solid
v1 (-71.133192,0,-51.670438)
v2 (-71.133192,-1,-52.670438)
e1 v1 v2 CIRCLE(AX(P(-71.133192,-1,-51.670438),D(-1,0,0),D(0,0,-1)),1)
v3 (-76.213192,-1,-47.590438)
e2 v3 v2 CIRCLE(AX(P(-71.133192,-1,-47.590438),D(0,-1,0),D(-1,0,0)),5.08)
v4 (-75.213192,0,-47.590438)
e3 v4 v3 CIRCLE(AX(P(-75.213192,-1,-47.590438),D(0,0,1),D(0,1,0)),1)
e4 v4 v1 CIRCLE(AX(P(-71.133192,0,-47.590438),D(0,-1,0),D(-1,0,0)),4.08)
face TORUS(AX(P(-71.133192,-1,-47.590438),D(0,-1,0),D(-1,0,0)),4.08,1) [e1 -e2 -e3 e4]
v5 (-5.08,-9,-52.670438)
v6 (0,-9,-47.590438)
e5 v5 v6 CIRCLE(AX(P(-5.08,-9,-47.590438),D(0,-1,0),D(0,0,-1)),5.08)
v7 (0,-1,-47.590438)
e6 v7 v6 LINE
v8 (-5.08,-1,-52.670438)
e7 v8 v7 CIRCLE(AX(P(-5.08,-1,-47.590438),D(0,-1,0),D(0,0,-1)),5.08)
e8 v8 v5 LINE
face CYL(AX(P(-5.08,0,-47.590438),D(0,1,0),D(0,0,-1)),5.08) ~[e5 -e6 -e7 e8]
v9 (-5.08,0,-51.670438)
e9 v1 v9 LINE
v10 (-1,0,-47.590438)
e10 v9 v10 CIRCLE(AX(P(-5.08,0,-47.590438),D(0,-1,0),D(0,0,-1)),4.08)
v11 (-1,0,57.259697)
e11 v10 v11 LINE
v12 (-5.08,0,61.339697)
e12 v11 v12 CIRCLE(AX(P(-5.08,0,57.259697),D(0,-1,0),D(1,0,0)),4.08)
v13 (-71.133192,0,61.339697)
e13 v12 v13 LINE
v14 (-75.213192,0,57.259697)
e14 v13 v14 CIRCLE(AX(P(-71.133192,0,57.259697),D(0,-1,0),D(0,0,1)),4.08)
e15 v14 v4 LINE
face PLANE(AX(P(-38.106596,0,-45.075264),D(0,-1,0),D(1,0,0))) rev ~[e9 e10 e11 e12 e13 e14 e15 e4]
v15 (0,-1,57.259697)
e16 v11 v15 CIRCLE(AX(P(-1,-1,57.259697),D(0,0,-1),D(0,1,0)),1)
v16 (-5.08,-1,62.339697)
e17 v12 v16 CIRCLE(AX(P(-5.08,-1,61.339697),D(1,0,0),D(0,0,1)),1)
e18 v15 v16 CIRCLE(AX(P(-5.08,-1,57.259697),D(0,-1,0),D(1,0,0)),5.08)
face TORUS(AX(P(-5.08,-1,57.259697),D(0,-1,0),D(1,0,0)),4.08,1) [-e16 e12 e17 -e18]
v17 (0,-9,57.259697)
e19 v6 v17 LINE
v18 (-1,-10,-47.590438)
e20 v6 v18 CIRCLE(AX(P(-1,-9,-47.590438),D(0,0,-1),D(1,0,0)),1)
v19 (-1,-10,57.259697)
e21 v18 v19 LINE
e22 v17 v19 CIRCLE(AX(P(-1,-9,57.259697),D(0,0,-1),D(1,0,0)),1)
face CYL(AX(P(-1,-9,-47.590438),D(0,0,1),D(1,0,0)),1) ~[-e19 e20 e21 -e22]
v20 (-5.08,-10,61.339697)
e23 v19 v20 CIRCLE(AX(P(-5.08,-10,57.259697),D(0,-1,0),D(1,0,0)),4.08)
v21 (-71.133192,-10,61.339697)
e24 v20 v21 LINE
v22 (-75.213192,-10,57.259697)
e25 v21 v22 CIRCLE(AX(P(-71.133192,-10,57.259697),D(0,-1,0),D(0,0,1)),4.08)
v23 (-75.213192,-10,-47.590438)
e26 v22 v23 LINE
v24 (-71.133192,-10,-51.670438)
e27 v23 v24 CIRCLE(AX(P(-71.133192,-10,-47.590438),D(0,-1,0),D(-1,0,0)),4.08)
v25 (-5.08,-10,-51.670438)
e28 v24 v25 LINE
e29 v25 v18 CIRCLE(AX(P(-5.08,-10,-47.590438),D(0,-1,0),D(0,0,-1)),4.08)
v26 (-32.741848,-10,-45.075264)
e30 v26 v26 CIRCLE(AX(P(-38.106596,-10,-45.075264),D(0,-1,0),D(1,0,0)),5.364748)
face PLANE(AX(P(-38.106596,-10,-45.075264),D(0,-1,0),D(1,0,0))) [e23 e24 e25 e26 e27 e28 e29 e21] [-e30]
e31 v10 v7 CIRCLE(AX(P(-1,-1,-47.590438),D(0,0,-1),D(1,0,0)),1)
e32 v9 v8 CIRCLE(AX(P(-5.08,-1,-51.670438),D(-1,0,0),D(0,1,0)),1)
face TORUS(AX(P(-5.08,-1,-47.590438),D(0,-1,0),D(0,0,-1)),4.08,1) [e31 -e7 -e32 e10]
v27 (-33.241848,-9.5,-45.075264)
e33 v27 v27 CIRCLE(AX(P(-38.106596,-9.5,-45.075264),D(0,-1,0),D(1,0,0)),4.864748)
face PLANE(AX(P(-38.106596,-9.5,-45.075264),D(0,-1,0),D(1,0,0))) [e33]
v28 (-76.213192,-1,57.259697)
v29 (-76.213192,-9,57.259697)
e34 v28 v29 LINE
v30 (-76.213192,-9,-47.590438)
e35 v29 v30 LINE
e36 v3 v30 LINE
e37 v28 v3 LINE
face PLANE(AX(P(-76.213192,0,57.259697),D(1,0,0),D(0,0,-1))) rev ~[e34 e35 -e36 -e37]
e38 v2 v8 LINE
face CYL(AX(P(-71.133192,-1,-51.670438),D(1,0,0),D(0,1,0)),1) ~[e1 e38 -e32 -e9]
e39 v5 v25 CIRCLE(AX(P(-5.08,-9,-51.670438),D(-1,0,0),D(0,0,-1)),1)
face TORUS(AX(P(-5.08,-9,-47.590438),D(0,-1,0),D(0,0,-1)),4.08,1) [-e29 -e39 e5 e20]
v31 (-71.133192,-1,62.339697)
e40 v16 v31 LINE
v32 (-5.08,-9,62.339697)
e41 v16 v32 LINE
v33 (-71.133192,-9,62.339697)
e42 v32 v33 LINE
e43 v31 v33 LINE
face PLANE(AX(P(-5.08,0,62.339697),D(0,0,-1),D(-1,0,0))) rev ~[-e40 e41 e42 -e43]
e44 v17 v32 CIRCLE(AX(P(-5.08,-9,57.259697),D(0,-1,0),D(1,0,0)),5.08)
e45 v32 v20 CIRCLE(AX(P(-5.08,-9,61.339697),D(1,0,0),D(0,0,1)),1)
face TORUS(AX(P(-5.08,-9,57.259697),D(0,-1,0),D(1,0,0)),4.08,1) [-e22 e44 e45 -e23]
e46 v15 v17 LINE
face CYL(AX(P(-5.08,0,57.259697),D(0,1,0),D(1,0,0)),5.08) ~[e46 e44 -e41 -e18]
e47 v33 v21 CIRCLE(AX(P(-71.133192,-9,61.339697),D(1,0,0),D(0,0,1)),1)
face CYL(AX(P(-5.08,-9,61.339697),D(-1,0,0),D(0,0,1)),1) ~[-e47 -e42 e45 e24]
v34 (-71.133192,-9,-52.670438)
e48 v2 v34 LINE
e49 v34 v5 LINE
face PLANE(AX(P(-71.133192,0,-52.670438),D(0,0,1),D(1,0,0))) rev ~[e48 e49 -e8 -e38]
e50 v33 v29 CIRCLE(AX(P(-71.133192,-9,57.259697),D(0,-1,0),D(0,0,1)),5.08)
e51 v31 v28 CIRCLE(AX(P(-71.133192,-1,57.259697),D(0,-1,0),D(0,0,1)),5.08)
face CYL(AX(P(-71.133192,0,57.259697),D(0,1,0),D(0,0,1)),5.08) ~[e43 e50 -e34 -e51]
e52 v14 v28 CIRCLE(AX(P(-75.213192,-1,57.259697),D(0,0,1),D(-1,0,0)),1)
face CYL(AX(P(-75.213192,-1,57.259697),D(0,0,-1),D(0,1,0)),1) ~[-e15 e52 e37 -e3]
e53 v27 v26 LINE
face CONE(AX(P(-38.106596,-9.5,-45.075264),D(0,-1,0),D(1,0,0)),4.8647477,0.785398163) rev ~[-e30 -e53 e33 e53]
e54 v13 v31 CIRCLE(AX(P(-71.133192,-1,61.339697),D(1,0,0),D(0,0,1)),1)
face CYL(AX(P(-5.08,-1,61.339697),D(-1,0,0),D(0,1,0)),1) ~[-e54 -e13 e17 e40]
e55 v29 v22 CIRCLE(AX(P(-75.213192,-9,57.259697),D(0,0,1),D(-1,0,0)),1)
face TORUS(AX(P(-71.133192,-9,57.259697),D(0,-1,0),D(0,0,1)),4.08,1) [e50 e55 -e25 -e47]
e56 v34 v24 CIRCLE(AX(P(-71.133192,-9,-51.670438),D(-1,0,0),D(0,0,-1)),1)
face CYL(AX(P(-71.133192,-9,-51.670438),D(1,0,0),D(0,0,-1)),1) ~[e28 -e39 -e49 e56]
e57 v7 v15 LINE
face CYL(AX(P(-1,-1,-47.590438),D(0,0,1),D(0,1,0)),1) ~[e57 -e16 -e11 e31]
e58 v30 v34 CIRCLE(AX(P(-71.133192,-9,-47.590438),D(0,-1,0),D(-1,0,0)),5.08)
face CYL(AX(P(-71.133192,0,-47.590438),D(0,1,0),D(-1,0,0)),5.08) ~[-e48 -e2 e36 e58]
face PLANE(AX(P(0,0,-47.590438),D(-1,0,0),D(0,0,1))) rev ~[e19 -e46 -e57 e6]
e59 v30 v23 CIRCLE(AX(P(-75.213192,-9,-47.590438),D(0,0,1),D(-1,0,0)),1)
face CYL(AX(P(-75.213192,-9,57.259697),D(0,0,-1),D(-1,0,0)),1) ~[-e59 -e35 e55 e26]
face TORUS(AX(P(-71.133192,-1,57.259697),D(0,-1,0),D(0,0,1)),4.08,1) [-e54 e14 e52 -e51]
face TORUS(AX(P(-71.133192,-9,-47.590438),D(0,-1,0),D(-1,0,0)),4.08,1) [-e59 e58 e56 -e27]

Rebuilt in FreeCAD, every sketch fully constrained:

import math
import FreeCAD as App
import Part
import Sketcher
from FreeCAD import Vector


def edges_at(feature, points):
    """Names of the edges that pass closest to the given points."""
    edges = feature.Shape.Edges
    near = lambda p: min(range(len(edges)), key=lambda i: edges[i].distToShape(Part.Vertex(*p))[0])
    return sorted({f"Edge{near(p) + 1}" for p in points})

doc = App.newDocument("Part")
body = doc.addObject("PartDesign::Body", "Body")

sketch1 = doc.addObject("Sketcher::SketchObject", "Sketch")
body.addObject(sketch1)
sketch1.AttachmentSupport = (doc.XZ_Plane, [""])
sketch1.MapMode = "FlatFace"
sketch1.addGeometry([
    Part.LineSegment(Vector(-5, 62, 0), Vector(-71, 62, 0)),
    Part.ArcOfCircle(Part.Circle(Vector(-71, 57, 0), Vector(0, 0, 1), 5), math.radians(90), math.radians(180)),
    Part.LineSegment(Vector(-76, 57, 0), Vector(-76, -48, 0)),
    Part.ArcOfCircle(Part.Circle(Vector(-71, -48, 0), Vector(0, 0, 1), 5), math.radians(180), math.radians(270)),
    Part.LineSegment(Vector(-71, -53, 0), Vector(-5, -53, 0)),
    Part.ArcOfCircle(Part.Circle(Vector(-5, -48, 0), Vector(0, 0, 1), 5), math.radians(-90), math.radians(0)),
    Part.LineSegment(Vector(0, -48, 0), Vector(0, 57, 0)),
    Part.ArcOfCircle(Part.Circle(Vector(-5, 57, 0), Vector(0, 0, 1), 5), math.radians(0), math.radians(90)),
    Part.Circle(Vector(-38, -45, 0), Vector(0, 0, 1), 5),
], False)
sketch1.addConstraint([
    Sketcher.Constraint("Tangent", 0, 2, 1, 1),
    Sketcher.Constraint("Tangent", 1, 2, 2, 1),
    Sketcher.Constraint("Tangent", 2, 2, 3, 1),
    Sketcher.Constraint("Tangent", 3, 2, 4, 1),
    Sketcher.Constraint("Tangent", 4, 2, 5, 1),
    Sketcher.Constraint("Tangent", 5, 2, 6, 1),
    Sketcher.Constraint("Tangent", 6, 2, 7, 1),
    Sketcher.Constraint("Tangent", 7, 2, 0, 1),
    Sketcher.Constraint("Horizontal", 0),
    Sketcher.Constraint("Vertical", 2),
    Sketcher.Constraint("Horizontal", 4),
    Sketcher.Constraint("Vertical", 6),
    Sketcher.Constraint("Equal", 1, 3),
    Sketcher.Constraint("Equal", 3, 5),
    Sketcher.Constraint("Equal", 5, 7),
    Sketcher.Constraint("PointOnObject", 5, 2, -2),
    Sketcher.Constraint("Radius", 1, 5.08),
    Sketcher.Constraint("Diameter", 8, 10.984318),
    Sketcher.Constraint("DistanceX", 0, 2, 0, 1, 66.053192),
    Sketcher.Constraint("DistanceY", 2, 2, 2, 1, 104.850135),
    Sketcher.Constraint("DistanceY", 8, 3, 7, 3, 102.334961),
    Sketcher.Constraint("DistanceY", -1, 1, 1, 3, 57.259697),
    Sketcher.Constraint("DistanceX", 8, 3, -1, 1, 38.106596),
])
pad1 = doc.addObject("PartDesign::Pad", "Pad")
body.addObject(pad1)
pad1.Profile = sketch1
pad1.Length = 10

sketch2 = doc.addObject("Sketcher::SketchObject", "Sketch001")
body.addObject(sketch2)
sketch2.AttachmentSupport = (doc.XZ_Plane, [""])
sketch2.MapMode = "FlatFace"
sketch2.addGeometry([
    Part.Circle(Vector(-38.1, -45.1, 0), Vector(0, 0, 1), 5.5),
    Part.Circle(Vector(-38.1, -45.1, 0), Vector(0, 0, 1), 4.9),
], False)
sketch2.addConstraint([
    Sketcher.Constraint("Coincident", 1, 3, 0, 3),
    Sketcher.Constraint("Diameter", 0, 10.984318),
    Sketcher.Constraint("Diameter", 1, 9.729495),
    Sketcher.Constraint("DistanceX", 0, 3, -1, 1, 38.106596),
    Sketcher.Constraint("DistanceY", 0, 3, -1, 1, 45.075264),
])
pad2 = doc.addObject("PartDesign::Pad", "Pad001")
body.addObject(pad2)
pad2.Profile = sketch2
pad2.Length = 10
doc.recompute()

chamfer = doc.addObject("PartDesign::Chamfer", "Chamfer")
body.addObject(chamfer)
chamfer.Base = (pad2, edges_at(pad2, [(-42.971, -10, -45.075)]))
chamfer.Size = 0.5

sketch3 = doc.addObject("Sketcher::SketchObject", "Sketch002")
body.addObject(sketch3)
sketch3.AttachmentSupport = (doc.XZ_Plane, [""])
sketch3.MapMode = "FlatFace"
sketch3.addGeometry(Part.Circle(Vector(-38.1, -45.1, 0), Vector(0, 0, 1), 4.9), False)
sketch3.addConstraint([
    Sketcher.Constraint("Diameter", 0, 9.729495),
    Sketcher.Constraint("DistanceX", 0, 3, -1, 1, 38.106596),
    Sketcher.Constraint("DistanceY", 0, 3, -1, 1, 45.075264),
])
pad3 = doc.addObject("PartDesign::Pad", "Pad002")
body.addObject(pad3)
pad3.Profile = sketch3
pad3.Length = 9.5
doc.recompute()

fillet = doc.addObject("PartDesign::Fillet", "Fillet")
body.addObject(fillet)
fillet.Base = (pad3, edges_at(pad3, [
    (-76.213, -10, 4.835),
    (-74.725, 0, 60.852),
    (-76.213, -5, 57.26),
    (-76.213, -5, -47.59),
    (-76.213, 0, 4.835),
    (-71.133, -5, 62.34),
    (-71.133, -5, -52.67),
    (-74.725, 0, -51.183),
    (-38.107, 0, -52.67),
    (-38.107, -10, -52.67),
    (0, -5, -47.59),
    (-5.08, -5, -52.67),
    (0, -10, 4.835),
    (0, 0, 4.835),
]))
fillet.Radius = 1

doc.recompute()
